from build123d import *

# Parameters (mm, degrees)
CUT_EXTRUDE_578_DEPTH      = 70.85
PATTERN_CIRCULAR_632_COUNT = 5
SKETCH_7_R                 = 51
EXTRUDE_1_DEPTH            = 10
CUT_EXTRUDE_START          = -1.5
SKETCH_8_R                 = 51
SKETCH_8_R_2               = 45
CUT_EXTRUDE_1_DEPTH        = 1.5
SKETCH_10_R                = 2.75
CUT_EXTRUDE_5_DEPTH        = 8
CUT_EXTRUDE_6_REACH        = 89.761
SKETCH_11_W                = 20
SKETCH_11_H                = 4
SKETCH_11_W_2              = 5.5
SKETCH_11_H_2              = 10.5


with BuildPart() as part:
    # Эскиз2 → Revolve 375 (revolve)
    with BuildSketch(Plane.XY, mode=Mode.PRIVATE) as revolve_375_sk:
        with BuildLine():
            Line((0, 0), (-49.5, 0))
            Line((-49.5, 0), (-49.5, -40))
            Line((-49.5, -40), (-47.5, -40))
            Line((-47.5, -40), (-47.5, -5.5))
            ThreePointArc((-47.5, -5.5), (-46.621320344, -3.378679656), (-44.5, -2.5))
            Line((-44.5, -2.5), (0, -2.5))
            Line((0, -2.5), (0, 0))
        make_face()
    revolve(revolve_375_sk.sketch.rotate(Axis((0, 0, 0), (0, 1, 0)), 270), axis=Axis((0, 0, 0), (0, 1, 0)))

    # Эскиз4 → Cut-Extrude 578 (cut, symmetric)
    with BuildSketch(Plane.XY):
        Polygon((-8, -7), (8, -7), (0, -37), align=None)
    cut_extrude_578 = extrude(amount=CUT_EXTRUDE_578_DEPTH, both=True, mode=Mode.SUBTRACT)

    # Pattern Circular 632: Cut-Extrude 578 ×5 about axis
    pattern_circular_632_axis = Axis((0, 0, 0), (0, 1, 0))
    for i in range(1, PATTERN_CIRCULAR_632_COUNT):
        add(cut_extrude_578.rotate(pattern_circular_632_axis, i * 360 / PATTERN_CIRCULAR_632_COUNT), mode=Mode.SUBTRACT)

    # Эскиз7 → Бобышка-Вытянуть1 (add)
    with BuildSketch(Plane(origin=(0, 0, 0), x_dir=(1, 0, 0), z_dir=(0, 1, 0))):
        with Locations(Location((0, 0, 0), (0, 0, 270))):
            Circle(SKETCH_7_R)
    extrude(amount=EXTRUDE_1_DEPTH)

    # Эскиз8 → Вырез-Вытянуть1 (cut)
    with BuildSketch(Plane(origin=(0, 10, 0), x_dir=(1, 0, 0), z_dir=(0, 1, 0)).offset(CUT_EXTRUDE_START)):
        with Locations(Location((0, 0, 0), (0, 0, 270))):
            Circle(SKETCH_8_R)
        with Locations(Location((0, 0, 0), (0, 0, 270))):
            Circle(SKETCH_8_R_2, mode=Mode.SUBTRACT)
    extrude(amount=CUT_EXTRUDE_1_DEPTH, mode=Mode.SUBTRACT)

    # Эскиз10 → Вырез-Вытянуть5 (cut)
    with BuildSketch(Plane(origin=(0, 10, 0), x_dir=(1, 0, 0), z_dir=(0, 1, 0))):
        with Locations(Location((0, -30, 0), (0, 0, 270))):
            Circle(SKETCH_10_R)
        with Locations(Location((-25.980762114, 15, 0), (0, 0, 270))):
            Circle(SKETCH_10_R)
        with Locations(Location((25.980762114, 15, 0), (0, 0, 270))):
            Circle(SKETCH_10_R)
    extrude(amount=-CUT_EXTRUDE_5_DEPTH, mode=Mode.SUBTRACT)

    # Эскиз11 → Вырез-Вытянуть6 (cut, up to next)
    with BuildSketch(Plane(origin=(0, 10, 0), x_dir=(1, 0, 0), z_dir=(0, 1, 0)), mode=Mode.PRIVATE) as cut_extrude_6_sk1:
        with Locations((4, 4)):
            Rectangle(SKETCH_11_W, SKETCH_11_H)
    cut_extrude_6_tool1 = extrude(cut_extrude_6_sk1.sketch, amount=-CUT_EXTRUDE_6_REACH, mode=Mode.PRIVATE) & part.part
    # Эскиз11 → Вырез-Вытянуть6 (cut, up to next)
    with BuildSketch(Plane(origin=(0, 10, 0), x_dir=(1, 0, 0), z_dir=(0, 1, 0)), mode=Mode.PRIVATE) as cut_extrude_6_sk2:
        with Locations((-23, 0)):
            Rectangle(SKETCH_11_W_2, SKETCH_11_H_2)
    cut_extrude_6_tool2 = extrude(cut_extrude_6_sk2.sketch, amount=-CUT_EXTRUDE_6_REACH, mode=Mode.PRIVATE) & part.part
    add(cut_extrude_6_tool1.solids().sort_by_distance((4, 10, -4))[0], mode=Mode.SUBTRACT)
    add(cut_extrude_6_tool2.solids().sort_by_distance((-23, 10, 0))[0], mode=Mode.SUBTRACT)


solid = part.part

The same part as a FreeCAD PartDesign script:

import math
import FreeCAD as App
import Part
import Sketcher
Q = App.Units.Quantity

doc = App.newDocument("Part")
params = doc.addObject("Spreadsheet::Sheet", "Params")
for row, (alias, value) in enumerate([
    ("sketch1_radius", "3 mm"),
    ("sketch1_width", "2 mm"),
    ("sketch1_height", "40 mm"),
    ("sketch1_width2", "49.5 mm"),
    ("sketch1_height2", "34.5 mm"),
    ("revolution_angle", "360 deg"),
    ("sketch2_width", "16 mm"),
    ("pocket1_length", "141.7 mm"),
    ("sketch3_diameter", "102 mm"),
    ("pad1_length", "10 mm"),
    ("sketch4_diameter", "102 mm"),
    ("sketch4_diameter2", "90 mm"),
    ("pocket2_length", "1.5 mm"),
    ("sketch5_diameter", "5.5 mm"),
    ("pocket3_length", "8 mm"),
    ("sketch6_width", "20 mm"),
    ("sketch6_height", "4 mm"),
    ("sketch7_width", "5.5 mm"),
    ("sketch7_height", "10.5 mm"),
], start=1):
    params.set(f"A{row}", alias)
    params.set(f"B{row}", "=" + value)
    params.setAlias(f"B{row}", alias)

body = doc.addObject("PartDesign::Body", "Body")

sketch1 = body.newObject("Sketcher::SketchObject", "Sketch")
sketch1.AttachmentSupport = (doc.getObject("XY_Plane"), [""])
sketch1.MapMode = "FlatFace"
sketch1.addGeometry([
    Part.LineSegment(App.Vector(0, 0, 0), App.Vector(-49.5, 0, 0)),
    Part.LineSegment(App.Vector(-49.5, 0, 0), App.Vector(-49.5, -40, 0)),
    Part.LineSegment(App.Vector(-49.5, -40, 0), App.Vector(-47.5, -40, 0)),
    Part.LineSegment(App.Vector(-47.5, -40, 0), App.Vector(-47.5, -5.5, 0)),
    Part.ArcOfCircle(Part.Circle(App.Vector(-44.5, -5.5, 0), App.Vector(0, 0, 1), 3), math.radians(90), math.radians(180)),
    Part.LineSegment(App.Vector(-44.5, -2.5, 0), App.Vector(0, -2.5, 0)),
    Part.LineSegment(App.Vector(0, -2.5, 0), App.Vector(0, 0, 0)),
], False)
sketch1.addConstraint([
    Sketcher.Constraint("Coincident", 0, 2, 1, 1),
    Sketcher.Constraint("Coincident", 1, 2, 2, 1),
    Sketcher.Constraint("Coincident", 2, 2, 3, 1),
    Sketcher.Constraint("Tangent", 3, 2, 4, 2),
    Sketcher.Constraint("Tangent", 4, 1, 5, 1),
    Sketcher.Constraint("Coincident", 5, 2, 6, 1),
    Sketcher.Constraint("Coincident", 6, 2, 0, 1),
    Sketcher.Constraint("Horizontal", 0),
    Sketcher.Constraint("Vertical", 1),
    Sketcher.Constraint("Horizontal", 2),
    Sketcher.Constraint("Vertical", 3),
    Sketcher.Constraint("Horizontal", 5),
    Sketcher.Constraint("Vertical", 6),
    Sketcher.Constraint("Coincident", 6, 2, -1, 1),
    Sketcher.Constraint("Radius", 4, Q("3 mm")),
    Sketcher.Constraint("DistanceX", 2, 1, 2, 2, Q("2 mm")),
    Sketcher.Constraint("DistanceY", 1, 2, 1, 1, Q("40 mm")),
    Sketcher.Constraint("DistanceX", 0, 2, 0, 1, Q("49.5 mm")),
    Sketcher.Constraint("DistanceY", 3, 1, 3, 2, Q("34.5 mm")),
])
sketch1.setExpression("Constraints[14]", "Params.sketch1_radius")
sketch1.setExpression("Constraints[15]", "Params.sketch1_width")
sketch1.setExpression("Constraints[16]", "Params.sketch1_height")
sketch1.setExpression("Constraints[17]", "Params.sketch1_width2")
sketch1.setExpression("Constraints[18]", "Params.sketch1_height2")
revolution = body.newObject("PartDesign::Revolution", "Revolution")
revolution.Profile = sketch1
revolution.ReferenceAxis = (sketch1, ["V_Axis"])
revolution.setExpression("Angle", "Params.revolution_angle")

sketch2 = body.newObject("Sketcher::SketchObject", "Sketch001")
sketch2.AttachmentSupport = (doc.getObject("XY_Plane"), [""])
sketch2.MapMode = "FlatFace"
sketch2.addGeometry([
    Part.LineSegment(App.Vector(8, -7, 0), App.Vector(-8, -7, 0)),
    Part.LineSegment(App.Vector(-8, -7, 0), App.Vector(0, -37, 0)),
    Part.LineSegment(App.Vector(0, -37, 0), App.Vector(8, -7, 0)),
], False)
sketch2.addConstraint([
    Sketcher.Constraint("Coincident", 0, 2, 1, 1),
    Sketcher.Constraint("Coincident", 1, 2, 2, 1),
    Sketcher.Constraint("Coincident", 2, 2, 0, 1),
    Sketcher.Constraint("Horizontal", 0),
    Sketcher.Constraint("PointOnObject", 1, 2, -2),
    Sketcher.Constraint("Equal", 1, 2),
    Sketcher.Constraint("DistanceX", 0, 2, 0, 1, Q("16 mm")),
    Sketcher.Constraint("DistanceY", 0, 2, -1, 1, Q("7 mm")),
    Sketcher.Constraint("DistanceY", 1, 2, -1, 1, Q("37 mm")),
])
sketch2.setExpression("Constraints[6]", "Params.sketch2_width")
pocket1 = body.newObject("PartDesign::Pocket", "Pocket")
pocket1.Profile = sketch2
pocket1.setExpression("Length", "Params.pocket1_length")
pocket1.Midplane = True
doc.recompute()

polarpattern = body.newObject("PartDesign::PolarPattern", "PolarPattern")
polarpattern.Originals = [pocket1]
polarpattern.Axis = (doc.getObject("Y_Axis"), [""])
polarpattern.Angle = 360
polarpattern.Occurrences = 5
body.Tip = polarpattern

sketch3 = body.newObject("Sketcher::SketchObject", "Sketch002")
sketch3.AttachmentSupport = (doc.getObject("XZ_Plane"), [""])
sketch3.MapMode = "FlatFace"
sketch3.addGeometry(Part.Circle(App.Vector(0, 0, 0), App.Vector(0, 0, 1), 51), False)
sketch3.addConstraint([
    Sketcher.Constraint("Coincident", 0, 3, -1, 1),
    Sketcher.Constraint("Diameter", 0, Q("102 mm")),
])
sketch3.setExpression("Constraints[1]", "Params.sketch3_diameter")
pad1 = body.newObject("PartDesign::Pad", "Pad")
pad1.Profile = sketch3
pad1.setExpression("Length", "Params.pad1_length")
pad1.Reversed = True

sketch4 = body.newObject("Sketcher::SketchObject", "Sketch003")
sketch4.AttachmentSupport = (doc.getObject("XZ_Plane"), [""])
sketch4.MapMode = "FlatFace"
sketch4.AttachmentOffset = App.Placement(App.Vector(0, 0, -8.5), App.Rotation())
sketch4.addGeometry([
    Part.Circle(App.Vector(0, 0, 0), App.Vector(0, 0, 1), 51),
    Part.Circle(App.Vector(0, 0, 0), App.Vector(0, 0, 1), 45),
], False)
sketch4.addConstraint([
    Sketcher.Constraint("Coincident", 0, 3, -1, 1),
    Sketcher.Constraint("Coincident", 1, 3, -1, 1),
    Sketcher.Constraint("Diameter", 0, Q("102 mm")),
    Sketcher.Constraint("Diameter", 1, Q("90 mm")),
])
sketch4.setExpression("Constraints[2]", "Params.sketch4_diameter")
sketch4.setExpression("Constraints[3]", "Params.sketch4_diameter2")
pocket2 = body.newObject("PartDesign::Pocket", "Pocket001")
pocket2.Profile = sketch4
pocket2.setExpression("Length", "Params.pocket2_length")

sketch5 = body.newObject("Sketcher::SketchObject", "Sketch004")
sketch5.AttachmentSupport = (doc.getObject("XZ_Plane"), [""])
sketch5.MapMode = "FlatFace"
sketch5.AttachmentOffset = App.Placement(App.Vector(0, 0, -10), App.Rotation())
sketch5.addGeometry([
    Part.Circle(App.Vector(0, 30, 0), App.Vector(0, 0, 1), 2.75),
    Part.Circle(App.Vector(-25.980762, -15, 0), App.Vector(0, 0, 1), 2.75),
    Part.Circle(App.Vector(25.980762, -15, 0), App.Vector(0, 0, 1), 2.75),
], False)
sketch5.addConstraint([
    Sketcher.Constraint("Equal", 0, 1),
    Sketcher.Constraint("Equal", 1, 2),
    Sketcher.Constraint("Symmetric", 1, 3, 2, 3, -2),
    Sketcher.Constraint("PointOnObject", 0, 3, -2),
    Sketcher.Constraint("Diameter", 0, Q("5.5 mm")),
    Sketcher.Constraint("DistanceY", -1, 1, 0, 3, Q("30 mm")),
    Sketcher.Constraint("DistanceY", 1, 3, -1, 1, Q("15 mm")),
    Sketcher.Constraint("DistanceX", 1, 3, -1, 1, Q("25.980762 mm")),
])
sketch5.setExpression("Constraints[4]", "Params.sketch5_diameter")
pocket3 = body.newObject("PartDesign::Pocket", "Pocket002")
pocket3.Profile = sketch5
pocket3.setExpression("Length", "Params.pocket3_length")
pocket3.Reversed = True

sketch6 = body.newObject("Sketcher::SketchObject", "Sketch005")
sketch6.AttachmentSupport = (doc.getObject("XZ_Plane"), [""])
sketch6.MapMode = "FlatFace"
sketch6.AttachmentOffset = App.Placement(App.Vector(0, 0, -10), App.Rotation())
sketch6.addGeometry([
    Part.LineSegment(App.Vector(-6, -6, 0), App.Vector(-6, -2, 0)),
    Part.LineSegment(App.Vector(-6, -2, 0), App.Vector(14, -2, 0)),
    Part.LineSegment(App.Vector(14, -2, 0), App.Vector(14, -6, 0)),
    Part.LineSegment(App.Vector(14, -6, 0), App.Vector(-6, -6, 0)),
], False)
sketch6.addConstraint([
    Sketcher.Constraint("Coincident", 0, 2, 1, 1),
    Sketcher.Constraint("Coincident", 1, 2, 2, 1),
    Sketcher.Constraint("Coincident", 2, 2, 3, 1),
    Sketcher.Constraint("Coincident", 3, 2, 0, 1),
    Sketcher.Constraint("Vertical", 0),
    Sketcher.Constraint("Horizontal", 1),
    Sketcher.Constraint("Vertical", 2),
    Sketcher.Constraint("Horizontal", 3),
    Sketcher.Constraint("DistanceX", 1, 1, 1, 2, Q("20 mm")),
    Sketcher.Constraint("DistanceY", 0, 1, 0, 2, Q("4 mm")),
    Sketcher.Constraint("DistanceX", 0, 2, -1, 1, Q("6 mm")),
    Sketcher.Constraint("DistanceY", 0, 2, -1, 1, Q("2 mm")),
])
sketch6.setExpression("Constraints[8]", "Params.sketch6_width")
sketch6.setExpression("Constraints[9]", "Params.sketch6_height")
pocket4 = body.newObject("PartDesign::Pocket", "Pocket003")
pocket4.Profile = sketch6
pocket4.Type = "UpToFirst"
pocket4.Reversed = True

sketch7 = body.newObject("Sketcher::SketchObject", "Sketch006")
sketch7.AttachmentSupport = (doc.getObject("XZ_Plane"), [""])
sketch7.MapMode = "FlatFace"
sketch7.AttachmentOffset = App.Placement(App.Vector(0, 0, -10), App.Rotation())
sketch7.addGeometry([
    Part.LineSegment(App.Vector(-25.75, -5.25, 0), App.Vector(-25.75, 5.25, 0)),
    Part.LineSegment(App.Vector(-25.75, 5.25, 0), App.Vector(-20.25, 5.25, 0)),
    Part.LineSegment(App.Vector(-20.25, 5.25, 0), App.Vector(-20.25, -5.25, 0)),
    Part.LineSegment(App.Vector(-20.25, -5.25, 0), App.Vector(-25.75, -5.25, 0)),
], False)
sketch7.addConstraint([
    Sketcher.Constraint("Coincident", 0, 2, 1, 1),
    Sketcher.Constraint("Coincident", 1, 2, 2, 1),
    Sketcher.Constraint("Coincident", 2, 2, 3, 1),
    Sketcher.Constraint("Coincident", 3, 2, 0, 1),
    Sketcher.Constraint("Vertical", 0),
    Sketcher.Constraint("Horizontal", 1),
    Sketcher.Constraint("Vertical", 2),
    Sketcher.Constraint("Horizontal", 3),
    Sketcher.Constraint("DistanceX", 1, 1, 1, 2, Q("5.5 mm")),
    Sketcher.Constraint("DistanceY", 0, 1, 0, 2, Q("10.5 mm")),
    Sketcher.Constraint("DistanceX", 0, 2, -1, 1, Q("25.75 mm")),
    Sketcher.Constraint("DistanceY", -1, 1, 0, 2, Q("5.25 mm")),
])
sketch7.setExpression("Constraints[8]", "Params.sketch7_width")
sketch7.setExpression("Constraints[9]", "Params.sketch7_height")
pocket5 = body.newObject("PartDesign::Pocket", "Pocket004")
pocket5.Profile = sketch7
pocket5.Type = "UpToFirst"
pocket5.Reversed = True

doc.recompute()
